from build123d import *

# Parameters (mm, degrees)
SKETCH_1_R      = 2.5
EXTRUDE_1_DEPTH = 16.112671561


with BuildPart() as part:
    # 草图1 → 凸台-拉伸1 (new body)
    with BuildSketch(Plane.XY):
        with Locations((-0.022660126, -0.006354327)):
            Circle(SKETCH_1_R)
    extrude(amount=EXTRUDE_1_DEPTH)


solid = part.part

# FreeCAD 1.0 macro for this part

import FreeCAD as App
import Part
import Sketcher

doc = App.newDocument("Part")
body = doc.addObject("PartDesign::Body", "Body")

# Sketch on XY plane
sketch1 = body.newObject("Sketcher::SketchObject", "Sketch")
sketch1.AttachmentSupport = (doc.getObject("XY_Plane"), [""])
sketch1.MapMode = "FlatFace"
sketch1.addGeometry(Part.Circle(App.Vector(-0.02266, -0.006354, 0), App.Vector(0, 0, 1), 2.5), False)
sketch1.addConstraint([
    Sketcher.Constraint("Diameter", 0, 5.0),
    Sketcher.Constraint("DistanceX", 0, 3, -1, 1, 0.02266),
    Sketcher.Constraint("DistanceY", 0, 3, -1, 1, 0.006354),
])
pad1 = body.newObject("PartDesign::Pad", "Pad")
pad1.Profile = sketch1
pad1.Length = 16.112672

doc.recompute()
